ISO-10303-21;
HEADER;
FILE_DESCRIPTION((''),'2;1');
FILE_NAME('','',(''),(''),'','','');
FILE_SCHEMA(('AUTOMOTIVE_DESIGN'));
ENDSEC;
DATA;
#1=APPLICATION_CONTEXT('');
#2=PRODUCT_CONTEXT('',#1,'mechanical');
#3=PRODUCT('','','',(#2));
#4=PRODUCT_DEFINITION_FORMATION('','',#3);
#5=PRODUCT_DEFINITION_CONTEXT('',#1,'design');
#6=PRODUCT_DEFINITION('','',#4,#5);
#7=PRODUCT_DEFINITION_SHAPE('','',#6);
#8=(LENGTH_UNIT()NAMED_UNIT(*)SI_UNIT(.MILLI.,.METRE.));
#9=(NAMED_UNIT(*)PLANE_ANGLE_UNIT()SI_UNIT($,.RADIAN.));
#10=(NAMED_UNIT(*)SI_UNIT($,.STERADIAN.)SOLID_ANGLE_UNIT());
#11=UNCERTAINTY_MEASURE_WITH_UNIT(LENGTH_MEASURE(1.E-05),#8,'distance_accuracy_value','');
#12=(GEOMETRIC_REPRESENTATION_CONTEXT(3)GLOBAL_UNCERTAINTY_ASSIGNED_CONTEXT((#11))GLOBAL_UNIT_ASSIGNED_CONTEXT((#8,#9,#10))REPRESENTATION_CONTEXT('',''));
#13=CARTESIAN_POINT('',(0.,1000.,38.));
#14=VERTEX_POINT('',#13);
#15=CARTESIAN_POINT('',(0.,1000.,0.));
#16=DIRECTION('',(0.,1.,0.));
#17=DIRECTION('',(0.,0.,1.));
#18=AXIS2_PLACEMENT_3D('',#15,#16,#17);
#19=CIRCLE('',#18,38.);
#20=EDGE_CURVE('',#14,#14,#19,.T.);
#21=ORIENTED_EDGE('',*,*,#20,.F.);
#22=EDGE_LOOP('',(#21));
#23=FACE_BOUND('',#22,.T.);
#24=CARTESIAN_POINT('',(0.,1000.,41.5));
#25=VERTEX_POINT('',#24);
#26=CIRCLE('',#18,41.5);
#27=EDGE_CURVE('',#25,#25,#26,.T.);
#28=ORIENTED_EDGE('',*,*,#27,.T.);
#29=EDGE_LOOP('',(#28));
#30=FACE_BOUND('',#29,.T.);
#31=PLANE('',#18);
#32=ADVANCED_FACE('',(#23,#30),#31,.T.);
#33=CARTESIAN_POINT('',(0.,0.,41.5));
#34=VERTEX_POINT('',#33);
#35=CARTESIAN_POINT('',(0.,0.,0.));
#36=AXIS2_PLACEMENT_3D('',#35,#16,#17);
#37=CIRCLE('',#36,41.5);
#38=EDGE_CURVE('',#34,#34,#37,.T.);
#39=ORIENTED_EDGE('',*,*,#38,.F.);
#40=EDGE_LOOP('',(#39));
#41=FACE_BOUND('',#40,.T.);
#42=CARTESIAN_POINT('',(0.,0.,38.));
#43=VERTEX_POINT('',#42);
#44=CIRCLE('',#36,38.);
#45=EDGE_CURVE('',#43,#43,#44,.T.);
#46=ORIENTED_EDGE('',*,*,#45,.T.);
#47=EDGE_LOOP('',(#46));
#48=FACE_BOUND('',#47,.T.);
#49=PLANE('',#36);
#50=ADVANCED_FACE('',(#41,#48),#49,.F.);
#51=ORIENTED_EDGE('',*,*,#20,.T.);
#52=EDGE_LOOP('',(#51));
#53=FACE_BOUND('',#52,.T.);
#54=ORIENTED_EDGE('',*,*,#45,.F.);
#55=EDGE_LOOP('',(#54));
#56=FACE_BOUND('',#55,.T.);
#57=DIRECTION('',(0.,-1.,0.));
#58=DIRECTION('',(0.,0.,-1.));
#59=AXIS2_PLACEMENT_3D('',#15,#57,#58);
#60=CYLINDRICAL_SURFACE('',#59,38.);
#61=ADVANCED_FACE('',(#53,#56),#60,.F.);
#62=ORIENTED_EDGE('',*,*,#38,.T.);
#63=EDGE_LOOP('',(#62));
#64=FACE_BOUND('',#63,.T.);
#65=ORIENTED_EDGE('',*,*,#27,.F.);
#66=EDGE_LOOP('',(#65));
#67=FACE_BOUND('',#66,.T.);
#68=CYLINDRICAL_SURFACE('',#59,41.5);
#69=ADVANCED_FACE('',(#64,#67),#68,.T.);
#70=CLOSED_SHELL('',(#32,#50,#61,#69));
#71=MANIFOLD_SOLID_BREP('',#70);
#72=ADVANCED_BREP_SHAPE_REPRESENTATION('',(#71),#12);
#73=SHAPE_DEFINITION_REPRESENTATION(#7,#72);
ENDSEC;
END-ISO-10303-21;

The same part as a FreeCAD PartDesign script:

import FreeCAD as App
import Part
import Sketcher
from FreeCAD import Vector

doc = App.newDocument("Part")
body = doc.addObject("PartDesign::Body", "Body")

# Sketch on XZ plane
sketch1 = doc.addObject("Sketcher::SketchObject", "Sketch")
body.addObject(sketch1)
sketch1.AttachmentSupport = (doc.XZ_Plane, [""])
sketch1.MapMode = "FlatFace"
sketch1.addGeometry([
    Part.Circle(Vector(0, 0, 0), Vector(0, 0, 1), 42),
    Part.Circle(Vector(0, 0, 0), Vector(0, 0, 1), 38),
], False)
sketch1.addConstraint([
    Sketcher.Constraint("Coincident", 0, 3, -1, 1),
    Sketcher.Constraint("Coincident", 1, 3, -1, 1),
    Sketcher.Constraint("Diameter", 0, 83.0),
    Sketcher.Constraint("Diameter", 1, 76.0),
])
pad1 = doc.addObject("PartDesign::Pad", "Pad")
body.addObject(pad1)
pad1.Profile = sketch1
pad1.Length = 1000
pad1.Reversed = True

doc.recompute()
